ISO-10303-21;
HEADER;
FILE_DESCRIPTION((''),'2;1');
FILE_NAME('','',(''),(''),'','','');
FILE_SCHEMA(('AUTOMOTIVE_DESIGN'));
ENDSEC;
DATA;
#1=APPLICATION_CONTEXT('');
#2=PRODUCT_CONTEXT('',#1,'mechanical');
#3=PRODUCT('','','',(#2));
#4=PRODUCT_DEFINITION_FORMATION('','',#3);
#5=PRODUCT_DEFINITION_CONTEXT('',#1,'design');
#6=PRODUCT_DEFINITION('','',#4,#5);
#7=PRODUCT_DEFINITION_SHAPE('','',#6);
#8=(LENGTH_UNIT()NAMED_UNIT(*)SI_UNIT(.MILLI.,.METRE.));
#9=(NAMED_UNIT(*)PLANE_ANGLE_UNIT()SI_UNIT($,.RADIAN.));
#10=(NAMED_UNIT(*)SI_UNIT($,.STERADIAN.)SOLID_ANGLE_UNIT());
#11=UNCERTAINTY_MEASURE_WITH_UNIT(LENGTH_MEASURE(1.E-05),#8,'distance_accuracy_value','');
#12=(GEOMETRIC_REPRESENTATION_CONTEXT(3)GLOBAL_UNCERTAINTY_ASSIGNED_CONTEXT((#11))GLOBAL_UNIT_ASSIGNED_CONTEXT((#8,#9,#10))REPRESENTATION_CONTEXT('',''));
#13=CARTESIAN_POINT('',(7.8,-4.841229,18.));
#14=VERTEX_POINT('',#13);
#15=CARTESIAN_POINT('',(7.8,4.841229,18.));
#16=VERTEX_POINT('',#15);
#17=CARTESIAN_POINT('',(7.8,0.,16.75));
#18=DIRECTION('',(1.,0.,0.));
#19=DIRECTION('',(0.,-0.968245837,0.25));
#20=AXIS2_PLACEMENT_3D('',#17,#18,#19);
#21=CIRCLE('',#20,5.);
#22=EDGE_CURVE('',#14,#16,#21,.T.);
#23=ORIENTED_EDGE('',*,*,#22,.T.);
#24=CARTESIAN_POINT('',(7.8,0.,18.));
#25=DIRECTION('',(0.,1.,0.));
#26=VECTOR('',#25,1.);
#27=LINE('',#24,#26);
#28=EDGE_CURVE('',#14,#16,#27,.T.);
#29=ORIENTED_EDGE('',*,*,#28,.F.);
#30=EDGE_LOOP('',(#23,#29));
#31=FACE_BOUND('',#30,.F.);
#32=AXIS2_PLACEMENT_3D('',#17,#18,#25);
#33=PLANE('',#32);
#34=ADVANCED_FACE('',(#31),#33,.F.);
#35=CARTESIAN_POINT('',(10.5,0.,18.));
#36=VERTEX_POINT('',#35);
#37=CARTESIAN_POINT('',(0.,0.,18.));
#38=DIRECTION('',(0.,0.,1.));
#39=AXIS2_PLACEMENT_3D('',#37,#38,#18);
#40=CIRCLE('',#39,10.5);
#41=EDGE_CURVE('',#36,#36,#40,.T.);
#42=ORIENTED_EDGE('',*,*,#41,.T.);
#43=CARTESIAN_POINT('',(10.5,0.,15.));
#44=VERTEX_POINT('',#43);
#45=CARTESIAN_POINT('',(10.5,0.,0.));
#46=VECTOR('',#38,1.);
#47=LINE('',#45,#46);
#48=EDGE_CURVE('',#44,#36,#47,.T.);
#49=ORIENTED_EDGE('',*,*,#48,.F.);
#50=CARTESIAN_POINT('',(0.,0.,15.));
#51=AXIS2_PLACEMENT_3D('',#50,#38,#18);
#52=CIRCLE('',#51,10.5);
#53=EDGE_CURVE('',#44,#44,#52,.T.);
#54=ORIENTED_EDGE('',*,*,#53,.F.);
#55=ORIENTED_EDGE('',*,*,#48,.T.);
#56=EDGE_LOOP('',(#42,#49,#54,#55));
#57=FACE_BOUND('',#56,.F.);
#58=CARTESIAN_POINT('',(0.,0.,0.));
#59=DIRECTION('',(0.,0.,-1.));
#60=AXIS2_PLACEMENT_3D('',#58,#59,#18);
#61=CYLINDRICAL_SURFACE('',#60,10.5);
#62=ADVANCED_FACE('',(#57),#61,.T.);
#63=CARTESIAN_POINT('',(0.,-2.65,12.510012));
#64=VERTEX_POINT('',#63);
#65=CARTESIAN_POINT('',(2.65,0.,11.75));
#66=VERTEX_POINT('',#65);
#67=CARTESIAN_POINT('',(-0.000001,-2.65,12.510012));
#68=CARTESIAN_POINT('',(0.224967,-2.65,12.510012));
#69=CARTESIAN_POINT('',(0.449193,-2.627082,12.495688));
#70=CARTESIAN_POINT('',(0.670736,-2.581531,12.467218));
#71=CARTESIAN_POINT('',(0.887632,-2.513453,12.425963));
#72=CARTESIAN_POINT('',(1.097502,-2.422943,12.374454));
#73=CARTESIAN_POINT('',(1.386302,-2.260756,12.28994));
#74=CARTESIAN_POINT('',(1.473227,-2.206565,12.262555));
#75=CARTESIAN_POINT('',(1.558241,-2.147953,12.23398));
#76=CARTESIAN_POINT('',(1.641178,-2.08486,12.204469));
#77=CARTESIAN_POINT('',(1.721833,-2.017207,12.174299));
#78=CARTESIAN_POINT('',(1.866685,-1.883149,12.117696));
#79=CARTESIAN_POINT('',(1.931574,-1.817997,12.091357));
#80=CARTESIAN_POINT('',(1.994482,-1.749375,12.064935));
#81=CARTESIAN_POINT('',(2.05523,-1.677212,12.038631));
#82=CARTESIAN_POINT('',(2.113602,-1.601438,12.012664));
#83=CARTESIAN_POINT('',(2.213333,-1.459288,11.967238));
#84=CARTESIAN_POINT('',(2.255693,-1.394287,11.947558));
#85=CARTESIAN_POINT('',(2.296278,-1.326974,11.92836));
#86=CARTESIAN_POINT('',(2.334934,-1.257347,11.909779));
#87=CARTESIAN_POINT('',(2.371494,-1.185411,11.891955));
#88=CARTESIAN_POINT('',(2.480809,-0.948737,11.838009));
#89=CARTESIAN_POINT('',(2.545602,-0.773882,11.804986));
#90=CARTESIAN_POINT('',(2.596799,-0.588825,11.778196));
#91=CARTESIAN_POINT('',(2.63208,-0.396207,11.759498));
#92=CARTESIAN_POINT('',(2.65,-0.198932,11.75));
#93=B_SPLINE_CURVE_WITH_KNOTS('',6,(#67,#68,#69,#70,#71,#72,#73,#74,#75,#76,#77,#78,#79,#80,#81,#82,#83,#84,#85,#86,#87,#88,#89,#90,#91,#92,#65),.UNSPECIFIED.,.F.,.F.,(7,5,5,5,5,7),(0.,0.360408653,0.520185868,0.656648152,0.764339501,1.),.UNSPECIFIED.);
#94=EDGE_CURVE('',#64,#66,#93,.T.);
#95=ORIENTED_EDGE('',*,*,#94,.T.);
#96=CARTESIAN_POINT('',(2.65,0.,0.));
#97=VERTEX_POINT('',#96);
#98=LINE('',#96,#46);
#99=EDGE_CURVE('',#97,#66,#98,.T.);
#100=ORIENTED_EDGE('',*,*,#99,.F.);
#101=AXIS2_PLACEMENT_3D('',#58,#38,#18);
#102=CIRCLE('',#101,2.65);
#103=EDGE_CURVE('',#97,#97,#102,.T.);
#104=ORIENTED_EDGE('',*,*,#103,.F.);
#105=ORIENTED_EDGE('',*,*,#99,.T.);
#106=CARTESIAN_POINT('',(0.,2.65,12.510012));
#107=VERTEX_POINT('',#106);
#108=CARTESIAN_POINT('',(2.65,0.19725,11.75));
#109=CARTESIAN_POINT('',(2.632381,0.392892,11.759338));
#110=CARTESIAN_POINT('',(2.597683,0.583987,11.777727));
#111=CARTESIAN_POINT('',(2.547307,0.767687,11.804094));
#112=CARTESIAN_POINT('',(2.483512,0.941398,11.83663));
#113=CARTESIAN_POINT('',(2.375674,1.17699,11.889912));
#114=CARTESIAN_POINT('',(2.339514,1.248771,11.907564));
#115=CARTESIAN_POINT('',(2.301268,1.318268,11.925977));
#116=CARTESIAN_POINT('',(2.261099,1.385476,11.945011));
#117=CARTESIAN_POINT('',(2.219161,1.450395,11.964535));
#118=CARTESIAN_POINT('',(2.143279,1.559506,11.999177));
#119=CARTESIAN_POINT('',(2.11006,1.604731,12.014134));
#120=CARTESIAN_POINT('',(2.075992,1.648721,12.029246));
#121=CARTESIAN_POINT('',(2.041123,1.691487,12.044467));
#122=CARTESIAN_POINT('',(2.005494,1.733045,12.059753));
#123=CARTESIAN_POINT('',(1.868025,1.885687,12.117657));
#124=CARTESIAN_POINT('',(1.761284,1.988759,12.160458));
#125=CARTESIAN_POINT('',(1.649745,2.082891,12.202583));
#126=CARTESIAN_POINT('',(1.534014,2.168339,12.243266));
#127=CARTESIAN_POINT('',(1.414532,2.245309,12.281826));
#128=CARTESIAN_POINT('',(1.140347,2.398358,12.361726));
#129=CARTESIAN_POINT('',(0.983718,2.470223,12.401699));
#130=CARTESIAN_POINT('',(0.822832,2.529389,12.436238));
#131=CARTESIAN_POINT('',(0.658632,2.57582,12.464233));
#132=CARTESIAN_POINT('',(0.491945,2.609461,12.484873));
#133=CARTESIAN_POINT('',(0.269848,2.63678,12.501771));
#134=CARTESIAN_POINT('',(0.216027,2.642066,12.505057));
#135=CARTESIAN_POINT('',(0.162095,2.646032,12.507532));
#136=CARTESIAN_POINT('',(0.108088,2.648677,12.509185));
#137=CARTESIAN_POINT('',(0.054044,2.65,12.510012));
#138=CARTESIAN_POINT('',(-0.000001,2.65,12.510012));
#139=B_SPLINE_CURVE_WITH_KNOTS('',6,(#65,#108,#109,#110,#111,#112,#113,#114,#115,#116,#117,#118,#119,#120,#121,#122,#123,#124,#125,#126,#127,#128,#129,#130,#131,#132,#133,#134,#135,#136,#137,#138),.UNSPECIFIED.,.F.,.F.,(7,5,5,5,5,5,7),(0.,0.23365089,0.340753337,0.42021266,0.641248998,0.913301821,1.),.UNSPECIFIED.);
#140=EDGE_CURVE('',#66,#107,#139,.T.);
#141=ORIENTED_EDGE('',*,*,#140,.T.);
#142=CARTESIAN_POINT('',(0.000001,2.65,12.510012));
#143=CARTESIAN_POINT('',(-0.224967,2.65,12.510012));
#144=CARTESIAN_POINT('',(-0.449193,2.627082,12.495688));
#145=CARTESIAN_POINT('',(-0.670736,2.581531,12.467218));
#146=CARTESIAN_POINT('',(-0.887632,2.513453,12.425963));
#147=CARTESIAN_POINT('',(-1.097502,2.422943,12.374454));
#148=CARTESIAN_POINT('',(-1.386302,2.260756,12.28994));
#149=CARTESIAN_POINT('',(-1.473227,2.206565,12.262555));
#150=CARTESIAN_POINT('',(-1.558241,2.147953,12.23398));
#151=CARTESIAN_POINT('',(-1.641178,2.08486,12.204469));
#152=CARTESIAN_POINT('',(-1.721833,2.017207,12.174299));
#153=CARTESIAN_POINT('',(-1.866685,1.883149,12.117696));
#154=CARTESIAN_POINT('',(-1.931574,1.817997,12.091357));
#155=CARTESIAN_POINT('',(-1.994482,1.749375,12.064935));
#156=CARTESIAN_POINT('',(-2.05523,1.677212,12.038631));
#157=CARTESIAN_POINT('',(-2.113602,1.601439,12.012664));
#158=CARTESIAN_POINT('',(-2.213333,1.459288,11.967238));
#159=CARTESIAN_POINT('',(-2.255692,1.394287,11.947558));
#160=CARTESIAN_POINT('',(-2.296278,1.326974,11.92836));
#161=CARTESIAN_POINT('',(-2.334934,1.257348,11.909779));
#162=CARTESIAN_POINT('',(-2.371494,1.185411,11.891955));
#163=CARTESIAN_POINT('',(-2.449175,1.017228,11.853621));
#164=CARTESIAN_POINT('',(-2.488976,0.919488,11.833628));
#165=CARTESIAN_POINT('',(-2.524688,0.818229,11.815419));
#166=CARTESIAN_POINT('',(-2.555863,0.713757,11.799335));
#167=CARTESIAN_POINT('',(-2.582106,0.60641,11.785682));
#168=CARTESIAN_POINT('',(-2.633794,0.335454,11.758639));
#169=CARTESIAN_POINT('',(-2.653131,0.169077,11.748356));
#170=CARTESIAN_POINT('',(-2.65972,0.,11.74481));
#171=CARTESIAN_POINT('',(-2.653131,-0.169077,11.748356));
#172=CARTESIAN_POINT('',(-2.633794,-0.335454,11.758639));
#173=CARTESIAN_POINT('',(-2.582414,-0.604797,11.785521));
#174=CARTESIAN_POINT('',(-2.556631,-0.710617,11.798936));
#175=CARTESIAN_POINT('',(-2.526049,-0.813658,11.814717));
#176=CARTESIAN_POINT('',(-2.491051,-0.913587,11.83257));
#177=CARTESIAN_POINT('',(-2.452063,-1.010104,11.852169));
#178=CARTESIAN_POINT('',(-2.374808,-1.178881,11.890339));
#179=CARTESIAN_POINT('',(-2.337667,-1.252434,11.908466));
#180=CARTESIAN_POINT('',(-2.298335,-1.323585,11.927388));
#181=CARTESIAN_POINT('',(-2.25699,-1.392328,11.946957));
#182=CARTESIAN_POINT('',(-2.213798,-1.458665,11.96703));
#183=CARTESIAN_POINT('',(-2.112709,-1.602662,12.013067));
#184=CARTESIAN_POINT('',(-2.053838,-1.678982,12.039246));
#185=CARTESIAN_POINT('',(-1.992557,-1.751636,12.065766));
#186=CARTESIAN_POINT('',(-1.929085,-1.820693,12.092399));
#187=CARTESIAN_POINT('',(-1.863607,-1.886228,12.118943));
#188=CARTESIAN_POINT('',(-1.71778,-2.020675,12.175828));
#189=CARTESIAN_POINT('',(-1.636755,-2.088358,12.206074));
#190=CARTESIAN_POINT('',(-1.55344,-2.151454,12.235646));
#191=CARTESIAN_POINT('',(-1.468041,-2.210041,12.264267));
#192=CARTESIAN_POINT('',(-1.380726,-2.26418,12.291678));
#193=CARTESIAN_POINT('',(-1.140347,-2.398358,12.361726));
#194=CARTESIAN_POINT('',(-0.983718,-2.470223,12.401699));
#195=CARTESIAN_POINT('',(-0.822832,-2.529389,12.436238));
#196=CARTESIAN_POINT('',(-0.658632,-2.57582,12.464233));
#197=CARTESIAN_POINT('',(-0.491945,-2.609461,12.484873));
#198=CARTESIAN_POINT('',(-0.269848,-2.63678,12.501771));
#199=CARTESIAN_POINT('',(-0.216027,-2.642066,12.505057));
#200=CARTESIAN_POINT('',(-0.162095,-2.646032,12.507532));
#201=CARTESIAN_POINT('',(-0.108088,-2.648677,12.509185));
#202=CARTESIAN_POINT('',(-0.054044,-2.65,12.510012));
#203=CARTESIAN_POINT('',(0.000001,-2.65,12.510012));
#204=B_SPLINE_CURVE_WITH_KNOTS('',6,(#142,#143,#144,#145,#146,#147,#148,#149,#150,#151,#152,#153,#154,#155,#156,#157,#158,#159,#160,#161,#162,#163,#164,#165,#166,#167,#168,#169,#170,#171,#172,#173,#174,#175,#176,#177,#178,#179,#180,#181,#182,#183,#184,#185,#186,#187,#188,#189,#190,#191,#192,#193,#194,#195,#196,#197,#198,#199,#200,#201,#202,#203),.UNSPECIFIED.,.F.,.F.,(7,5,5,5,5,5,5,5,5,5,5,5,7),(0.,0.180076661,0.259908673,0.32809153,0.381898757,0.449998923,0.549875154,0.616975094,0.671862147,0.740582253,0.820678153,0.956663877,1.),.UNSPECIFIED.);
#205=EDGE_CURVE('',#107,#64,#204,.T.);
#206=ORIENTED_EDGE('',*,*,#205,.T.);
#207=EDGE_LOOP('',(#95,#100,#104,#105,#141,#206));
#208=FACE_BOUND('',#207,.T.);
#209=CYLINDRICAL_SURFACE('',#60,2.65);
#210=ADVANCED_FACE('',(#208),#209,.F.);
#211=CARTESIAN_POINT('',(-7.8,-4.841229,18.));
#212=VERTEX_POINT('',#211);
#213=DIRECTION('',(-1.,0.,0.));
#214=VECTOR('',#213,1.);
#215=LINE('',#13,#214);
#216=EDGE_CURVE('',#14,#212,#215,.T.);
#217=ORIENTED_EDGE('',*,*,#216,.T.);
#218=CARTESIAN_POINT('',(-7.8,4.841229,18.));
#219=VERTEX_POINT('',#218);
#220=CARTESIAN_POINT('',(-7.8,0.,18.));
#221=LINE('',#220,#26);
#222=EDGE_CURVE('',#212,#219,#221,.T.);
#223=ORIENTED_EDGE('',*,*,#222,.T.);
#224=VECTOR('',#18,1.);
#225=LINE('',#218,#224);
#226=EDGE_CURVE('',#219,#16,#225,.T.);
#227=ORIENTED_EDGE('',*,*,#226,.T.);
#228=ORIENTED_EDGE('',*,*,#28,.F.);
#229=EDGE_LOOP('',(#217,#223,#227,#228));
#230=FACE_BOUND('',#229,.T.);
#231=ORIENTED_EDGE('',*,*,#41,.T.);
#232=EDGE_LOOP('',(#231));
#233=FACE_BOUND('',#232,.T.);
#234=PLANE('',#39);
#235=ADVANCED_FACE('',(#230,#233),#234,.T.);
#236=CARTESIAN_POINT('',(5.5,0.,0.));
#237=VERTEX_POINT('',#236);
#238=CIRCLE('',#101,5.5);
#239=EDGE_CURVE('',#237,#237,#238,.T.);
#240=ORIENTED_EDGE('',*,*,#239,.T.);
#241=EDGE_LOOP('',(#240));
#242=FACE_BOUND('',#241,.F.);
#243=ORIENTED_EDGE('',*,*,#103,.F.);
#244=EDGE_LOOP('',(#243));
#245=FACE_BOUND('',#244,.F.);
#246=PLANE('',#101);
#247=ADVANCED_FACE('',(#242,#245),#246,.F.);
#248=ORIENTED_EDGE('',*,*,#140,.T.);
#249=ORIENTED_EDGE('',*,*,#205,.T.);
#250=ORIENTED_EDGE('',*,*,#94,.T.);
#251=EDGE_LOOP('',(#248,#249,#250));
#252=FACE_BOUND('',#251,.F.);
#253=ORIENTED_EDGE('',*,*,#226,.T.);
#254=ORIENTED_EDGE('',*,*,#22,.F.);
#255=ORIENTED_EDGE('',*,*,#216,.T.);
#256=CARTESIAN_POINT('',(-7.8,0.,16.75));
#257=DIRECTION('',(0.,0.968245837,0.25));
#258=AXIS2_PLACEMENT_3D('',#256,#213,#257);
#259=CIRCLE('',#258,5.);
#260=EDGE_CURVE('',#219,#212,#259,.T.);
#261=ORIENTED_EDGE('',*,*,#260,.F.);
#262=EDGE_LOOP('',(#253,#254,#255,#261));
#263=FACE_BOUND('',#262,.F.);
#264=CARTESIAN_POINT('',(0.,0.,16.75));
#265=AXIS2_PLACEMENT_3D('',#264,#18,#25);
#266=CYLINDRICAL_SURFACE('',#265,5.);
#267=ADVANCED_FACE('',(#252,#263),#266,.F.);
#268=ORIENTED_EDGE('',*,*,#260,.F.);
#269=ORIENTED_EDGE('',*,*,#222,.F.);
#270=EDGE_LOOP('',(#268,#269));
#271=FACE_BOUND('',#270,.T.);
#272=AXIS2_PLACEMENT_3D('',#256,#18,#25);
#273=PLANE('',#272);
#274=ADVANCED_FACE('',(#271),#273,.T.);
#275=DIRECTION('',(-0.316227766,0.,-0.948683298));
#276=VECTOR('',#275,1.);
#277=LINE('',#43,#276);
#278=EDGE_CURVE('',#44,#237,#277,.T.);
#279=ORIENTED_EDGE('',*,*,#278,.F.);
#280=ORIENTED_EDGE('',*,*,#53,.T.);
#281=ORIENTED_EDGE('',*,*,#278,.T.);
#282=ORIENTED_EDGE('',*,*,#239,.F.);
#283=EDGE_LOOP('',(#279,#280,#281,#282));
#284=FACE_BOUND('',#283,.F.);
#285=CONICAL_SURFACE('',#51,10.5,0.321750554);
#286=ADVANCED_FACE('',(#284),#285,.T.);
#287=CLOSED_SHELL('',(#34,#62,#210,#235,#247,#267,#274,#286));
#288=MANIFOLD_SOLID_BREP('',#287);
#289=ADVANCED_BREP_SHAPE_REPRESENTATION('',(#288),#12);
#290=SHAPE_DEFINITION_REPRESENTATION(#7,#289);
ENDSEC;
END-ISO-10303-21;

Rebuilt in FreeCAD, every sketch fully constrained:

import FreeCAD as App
import Part
import Sketcher
Q = App.Units.Quantity


def edges_at(feature, points):
    """Names of the edges that pass closest to the given points."""
    edges = feature.Shape.Edges
    near = lambda p: min(range(len(edges)), key=lambda i: edges[i].distToShape(Part.Vertex(*p))[0])
    return sorted({f"Edge{near(p) + 1}" for p in points})

doc = App.newDocument("Part")
params = doc.addObject("Spreadsheet::Sheet", "Params")
for row, (alias, value) in enumerate([
    ("sketch1_diameter", "21 mm"),
    ("sketch1_diameter2", "5.3 mm"),
    ("pad1_length", "18 mm"),
    ("sketch2_diameter", "10 mm"),
    ("pocket1_length", "7.8 mm"),
    ("pocket1_length2", "7.8 mm"),
    ("chamfer_size", "15 mm"),
    ("chamfer_size2", "5 mm"),
], start=1):
    params.set(f"A{row}", alias)
    params.set(f"B{row}", "=" + value)
    params.setAlias(f"B{row}", alias)

body = doc.addObject("PartDesign::Body", "Body")

sketch1 = body.newObject("Sketcher::SketchObject", "Sketch")
sketch1.AttachmentSupport = (doc.getObject("XY_Plane"), [""])
sketch1.MapMode = "FlatFace"
sketch1.addGeometry([
    Part.Circle(App.Vector(0, 0, 0), App.Vector(0, 0, 1), 10.5),
    Part.Circle(App.Vector(0, 0, 0), App.Vector(0, 0, 1), 2.6),
], False)
sketch1.addConstraint([
    Sketcher.Constraint("Coincident", 0, 3, -1, 1),
    Sketcher.Constraint("Coincident", 1, 3, -1, 1),
    Sketcher.Constraint("Diameter", 0, Q("21 mm")),
    Sketcher.Constraint("Diameter", 1, Q("5.3 mm")),
])
sketch1.setExpression("Constraints[2]", "Params.sketch1_diameter")
sketch1.setExpression("Constraints[3]", "Params.sketch1_diameter2")
pad1 = body.newObject("PartDesign::Pad", "Pad")
pad1.Profile = sketch1
pad1.setExpression("Length", "Params.pad1_length")

sketch2 = body.newObject("Sketcher::SketchObject", "Sketch001")
sketch2.AttachmentSupport = (doc.getObject("YZ_Plane"), [""])
sketch2.MapMode = "FlatFace"
sketch2.addGeometry(Part.Circle(App.Vector(0, 17, 0), App.Vector(0, 0, 1), 5), False)
sketch2.addConstraint([
    Sketcher.Constraint("PointOnObject", 0, 3, -2),
    Sketcher.Constraint("Diameter", 0, Q("10 mm")),
    Sketcher.Constraint("DistanceY", -1, 1, 0, 3, Q("16.75 mm")),
])
sketch2.setExpression("Constraints[1]", "Params.sketch2_diameter")
pocket1 = body.newObject("PartDesign::Pocket", "Pocket")
pocket1.Profile = sketch2
pocket1.Type = "TwoLengths"
pocket1.setExpression("Length", "Params.pocket1_length")
pocket1.setExpression("Length2", "Params.pocket1_length2")
doc.recompute()

chamfer = body.newObject("PartDesign::Chamfer", "Chamfer")
chamfer.Base = (pocket1, edges_at(pocket1, [(-10.5, 0, 0)]))
chamfer.ChamferType = "Two distances"
chamfer.setExpression("Size", "Params.chamfer_size")
chamfer.setExpression("Size2", "Params.chamfer_size2")

doc.recompute()
